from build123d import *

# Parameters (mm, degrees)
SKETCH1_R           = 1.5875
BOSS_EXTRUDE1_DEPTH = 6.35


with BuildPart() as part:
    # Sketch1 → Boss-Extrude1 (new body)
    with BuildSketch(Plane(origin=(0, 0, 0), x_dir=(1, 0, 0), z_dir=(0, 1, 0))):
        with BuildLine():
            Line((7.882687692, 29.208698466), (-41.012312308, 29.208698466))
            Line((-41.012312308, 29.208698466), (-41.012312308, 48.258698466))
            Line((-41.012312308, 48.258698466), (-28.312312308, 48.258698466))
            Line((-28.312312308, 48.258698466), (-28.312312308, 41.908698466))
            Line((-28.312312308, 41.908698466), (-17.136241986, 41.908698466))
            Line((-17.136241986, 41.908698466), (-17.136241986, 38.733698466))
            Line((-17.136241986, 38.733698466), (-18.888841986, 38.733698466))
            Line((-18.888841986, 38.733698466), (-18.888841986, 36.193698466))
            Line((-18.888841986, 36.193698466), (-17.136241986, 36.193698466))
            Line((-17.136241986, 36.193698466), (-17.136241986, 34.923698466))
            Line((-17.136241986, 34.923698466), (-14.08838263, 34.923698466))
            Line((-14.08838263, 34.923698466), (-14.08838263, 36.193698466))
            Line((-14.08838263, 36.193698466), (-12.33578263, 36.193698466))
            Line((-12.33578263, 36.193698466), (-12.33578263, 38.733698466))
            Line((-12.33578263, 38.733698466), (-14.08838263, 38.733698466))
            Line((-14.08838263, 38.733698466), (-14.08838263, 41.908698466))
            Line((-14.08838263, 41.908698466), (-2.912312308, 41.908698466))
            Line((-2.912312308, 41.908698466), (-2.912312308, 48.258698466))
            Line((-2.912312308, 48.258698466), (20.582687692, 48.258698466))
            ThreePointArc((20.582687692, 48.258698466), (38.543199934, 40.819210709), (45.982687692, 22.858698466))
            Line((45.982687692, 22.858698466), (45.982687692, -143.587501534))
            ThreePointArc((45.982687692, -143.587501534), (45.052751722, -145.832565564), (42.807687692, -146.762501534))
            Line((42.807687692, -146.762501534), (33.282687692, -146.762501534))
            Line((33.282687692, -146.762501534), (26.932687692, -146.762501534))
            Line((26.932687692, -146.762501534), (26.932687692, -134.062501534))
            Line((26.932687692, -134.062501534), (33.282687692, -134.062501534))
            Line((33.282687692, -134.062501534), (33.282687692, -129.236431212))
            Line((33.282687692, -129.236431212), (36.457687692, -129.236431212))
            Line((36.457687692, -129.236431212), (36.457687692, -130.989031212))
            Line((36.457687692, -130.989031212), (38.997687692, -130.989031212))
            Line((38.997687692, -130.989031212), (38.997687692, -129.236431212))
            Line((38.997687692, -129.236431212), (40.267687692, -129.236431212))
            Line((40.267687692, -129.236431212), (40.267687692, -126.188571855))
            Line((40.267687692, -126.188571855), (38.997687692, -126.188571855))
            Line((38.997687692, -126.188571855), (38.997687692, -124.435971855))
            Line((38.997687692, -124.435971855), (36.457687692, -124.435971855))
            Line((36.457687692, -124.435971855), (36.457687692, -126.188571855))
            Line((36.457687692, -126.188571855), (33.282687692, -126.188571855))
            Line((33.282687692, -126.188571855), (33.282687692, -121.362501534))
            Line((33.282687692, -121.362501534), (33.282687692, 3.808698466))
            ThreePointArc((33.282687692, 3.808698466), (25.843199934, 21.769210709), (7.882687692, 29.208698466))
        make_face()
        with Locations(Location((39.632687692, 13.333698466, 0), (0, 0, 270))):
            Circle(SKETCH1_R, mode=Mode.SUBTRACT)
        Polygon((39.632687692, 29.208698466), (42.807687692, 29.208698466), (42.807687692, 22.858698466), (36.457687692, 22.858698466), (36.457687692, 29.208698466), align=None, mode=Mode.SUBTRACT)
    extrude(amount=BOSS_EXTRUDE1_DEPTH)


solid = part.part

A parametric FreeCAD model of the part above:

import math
import FreeCAD as App
import Part
import Sketcher
Q = App.Units.Quantity

doc = App.newDocument("Part")
params = doc.addObject("Spreadsheet::Sheet", "Params")
for row, (alias, value) in enumerate([
    ("sketch1_radius", "1 in"),
    ("sketch1_diameter", "0.125 in"),
    ("sketch1_width", "0.1 in"),
    ("sketch1_width2", "0.5 in"),
    ("sketch1_radius2", "0.125 in"),
    ("pad1_length", "0.25 in"),
], start=1):
    params.set(f"A{row}", alias)
    params.set(f"B{row}", "=" + value)
    params.setAlias(f"B{row}", alias)

body = doc.addObject("PartDesign::Body", "Body")

# Sketch on XZ plane
sketch1 = body.newObject("Sketcher::SketchObject", "Sketch")
sketch1.AttachmentSupport = (doc.getObject("XZ_Plane"), [""])
sketch1.MapMode = "FlatFace"
sketch1.addGeometry([
    Part.LineSegment(App.Vector(-41.012312, -29.208698, 0), App.Vector(7.882688, -29.208698, 0)),  # 0
    Part.ArcOfCircle(Part.Circle(App.Vector(7.882688, -3.808698, 0), App.Vector(0, 0, 1), 25.4), math.radians(-90), math.radians(0)),  # 1
    Part.LineSegment(App.Vector(33.282688, -3.808698, 0), App.Vector(33.282688, 126.188572, 0)),  # 2
    Part.LineSegment(App.Vector(33.282688, 126.188572, 0), App.Vector(36.457688, 126.188572, 0)),  # 3
    Part.LineSegment(App.Vector(36.457688, 126.188572, 0), App.Vector(36.457688, 124.435972, 0)),  # 4
    Part.LineSegment(App.Vector(36.457688, 124.435972, 0), App.Vector(38.997688, 124.435972, 0)),  # 5
    Part.LineSegment(App.Vector(38.997688, 124.435972, 0), App.Vector(38.997688, 126.188572, 0)),  # 6
    Part.LineSegment(App.Vector(38.997688, 126.188572, 0), App.Vector(40.267688, 126.188572, 0)),  # 7
    Part.LineSegment(App.Vector(40.267688, 126.188572, 0), App.Vector(40.267688, 129.236431, 0)),  # 8
    Part.LineSegment(App.Vector(40.267688, 129.236431, 0), App.Vector(38.997688, 129.236431, 0)),  # 9
    Part.LineSegment(App.Vector(38.997688, 129.236431, 0), App.Vector(38.997688, 130.989031, 0)),  # 10
    Part.LineSegment(App.Vector(38.997688, 130.989031, 0), App.Vector(36.457688, 130.989031, 0)),  # 11
    Part.LineSegment(App.Vector(36.457688, 130.989031, 0), App.Vector(36.457688, 129.236431, 0)),  # 12
    Part.LineSegment(App.Vector(36.457688, 129.236431, 0), App.Vector(33.282688, 129.236431, 0)),  # 13
    Part.LineSegment(App.Vector(33.282688, 129.236431, 0), App.Vector(33.282688, 134.062502, 0)),  # 14
    Part.LineSegment(App.Vector(33.282688, 134.062502, 0), App.Vector(26.932688, 134.062502, 0)),  # 15
    Part.LineSegment(App.Vector(26.932688, 134.062502, 0), App.Vector(26.932688, 146.762502, 0)),  # 16
    Part.LineSegment(App.Vector(26.932688, 146.762502, 0), App.Vector(42.807688, 146.762502, 0)),  # 17
    Part.ArcOfCircle(Part.Circle(App.Vector(42.807688, 143.587502, 0), App.Vector(0, 0, 1), 3.175), math.radians(0), math.radians(90)),  # 18
    Part.LineSegment(App.Vector(45.982688, 143.587502, 0), App.Vector(45.982688, -22.858698, 0)),  # 19
    Part.ArcOfCircle(Part.Circle(App.Vector(20.582688, -22.858698, 0), App.Vector(0, 0, 1), 25.4), math.radians(-90), math.radians(0)),  # 20
    Part.LineSegment(App.Vector(20.582688, -48.258698, 0), App.Vector(-2.912312, -48.258698, 0)),  # 21
    Part.LineSegment(App.Vector(-2.912312, -48.258698, 0), App.Vector(-2.912312, -41.908698, 0)),  # 22
    Part.LineSegment(App.Vector(-2.912312, -41.908698, 0), App.Vector(-14.088383, -41.908698, 0)),  # 23
    Part.LineSegment(App.Vector(-14.088383, -41.908698, 0), App.Vector(-14.088383, -38.733698, 0)),  # 24
    Part.LineSegment(App.Vector(-14.088383, -38.733698, 0), App.Vector(-12.335783, -38.733698, 0)),  # 25
    Part.LineSegment(App.Vector(-12.335783, -38.733698, 0), App.Vector(-12.335783, -36.193698, 0)),  # 26
    Part.LineSegment(App.Vector(-12.335783, -36.193698, 0), App.Vector(-14.088383, -36.193698, 0)),  # 27
    Part.LineSegment(App.Vector(-14.088383, -36.193698, 0), App.Vector(-14.088383, -34.923698, 0)),  # 28
    Part.LineSegment(App.Vector(-14.088383, -34.923698, 0), App.Vector(-17.136242, -34.923698, 0)),  # 29
    Part.LineSegment(App.Vector(-17.136242, -34.923698, 0), App.Vector(-17.136242, -36.193698, 0)),  # 30
    Part.LineSegment(App.Vector(-17.136242, -36.193698, 0), App.Vector(-18.888842, -36.193698, 0)),  # 31
    Part.LineSegment(App.Vector(-18.888842, -36.193698, 0), App.Vector(-18.888842, -38.733698, 0)),  # 32
    Part.LineSegment(App.Vector(-18.888842, -38.733698, 0), App.Vector(-17.136242, -38.733698, 0)),  # 33
    Part.LineSegment(App.Vector(-17.136242, -38.733698, 0), App.Vector(-17.136242, -41.908698, 0)),  # 34
    Part.LineSegment(App.Vector(-17.136242, -41.908698, 0), App.Vector(-28.312312, -41.908698, 0)),  # 35
    Part.LineSegment(App.Vector(-28.312312, -41.908698, 0), App.Vector(-28.312312, -48.258698, 0)),  # 36
    Part.LineSegment(App.Vector(-28.312312, -48.258698, 0), App.Vector(-41.012312, -48.258698, 0)),  # 37
    Part.LineSegment(App.Vector(-41.012312, -48.258698, 0), App.Vector(-41.012312, -29.208698, 0)),  # 38
    Part.Circle(App.Vector(39.632688, -13.333698, 0), App.Vector(0, 0, 1), 1.5875),  # 39
    Part.LineSegment(App.Vector(42.807688, -29.208698, 0), App.Vector(42.807688, -22.858698, 0)),  # 40
    Part.LineSegment(App.Vector(42.807688, -22.858698, 0), App.Vector(36.457688, -22.858698, 0)),  # 41
    Part.LineSegment(App.Vector(36.457688, -22.858698, 0), App.Vector(36.457688, -29.208698, 0)),  # 42
    Part.LineSegment(App.Vector(36.457688, -29.208698, 0), App.Vector(42.807688, -29.208698, 0)),  # 43
], False)
sketch1.addConstraint([
    Sketcher.Constraint("Tangent", 0, 2, 1, 1),
    Sketcher.Constraint("Tangent", 1, 2, 2, 1),
    Sketcher.Constraint("Coincident", 2, 2, 3, 1),
    Sketcher.Constraint("Coincident", 3, 2, 4, 1),
    Sketcher.Constraint("Coincident", 4, 2, 5, 1),
    Sketcher.Constraint("Coincident", 5, 2, 6, 1),
    Sketcher.Constraint("Coincident", 6, 2, 7, 1),
    Sketcher.Constraint("Coincident", 7, 2, 8, 1),
    Sketcher.Constraint("Coincident", 8, 2, 9, 1),
    Sketcher.Constraint("Coincident", 9, 2, 10, 1),
    Sketcher.Constraint("Coincident", 10, 2, 11, 1),
    Sketcher.Constraint("Coincident", 11, 2, 12, 1),
    Sketcher.Constraint("Coincident", 12, 2, 13, 1),
    Sketcher.Constraint("Coincident", 13, 2, 14, 1),
    Sketcher.Constraint("Coincident", 14, 2, 15, 1),
    Sketcher.Constraint("Coincident", 15, 2, 16, 1),
    Sketcher.Constraint("Coincident", 16, 2, 17, 1),
    Sketcher.Constraint("Tangent", 17, 2, 18, 2),
    Sketcher.Constraint("Tangent", 18, 1, 19, 1),
    Sketcher.Constraint("Tangent", 19, 2, 20, 2),
    Sketcher.Constraint("Tangent", 20, 1, 21, 1),
    Sketcher.Constraint("Coincident", 21, 2, 22, 1),
    Sketcher.Constraint("Coincident", 22, 2, 23, 1),
    Sketcher.Constraint("Coincident", 23, 2, 24, 1),
    Sketcher.Constraint("Coincident", 24, 2, 25, 1),
    Sketcher.Constraint("Coincident", 25, 2, 26, 1),
    Sketcher.Constraint("Coincident", 26, 2, 27, 1),
    Sketcher.Constraint("Coincident", 27, 2, 28, 1),
    Sketcher.Constraint("Coincident", 28, 2, 29, 1),
    Sketcher.Constraint("Coincident", 29, 2, 30, 1),
    Sketcher.Constraint("Coincident", 30, 2, 31, 1),
    Sketcher.Constraint("Coincident", 31, 2, 32, 1),
    Sketcher.Constraint("Coincident", 32, 2, 33, 1),
    Sketcher.Constraint("Coincident", 33, 2, 34, 1),
    Sketcher.Constraint("Coincident", 34, 2, 35, 1),
    Sketcher.Constraint("Coincident", 35, 2, 36, 1),
    Sketcher.Constraint("Coincident", 36, 2, 37, 1),
    Sketcher.Constraint("Coincident", 37, 2, 38, 1),
    Sketcher.Constraint("Coincident", 38, 2, 0, 1),
    Sketcher.Constraint("Coincident", 40, 2, 41, 1),
    Sketcher.Constraint("Coincident", 41, 2, 42, 1),
    Sketcher.Constraint("Coincident", 42, 2, 43, 1),
    Sketcher.Constraint("Coincident", 43, 2, 40, 1),
    Sketcher.Constraint("Horizontal", 0),
    Sketcher.Constraint("Vertical", 2),
    Sketcher.Constraint("Horizontal", 3),
    Sketcher.Constraint("Vertical", 4),
    Sketcher.Constraint("Horizontal", 5),
    Sketcher.Constraint("Vertical", 6),
    Sketcher.Constraint("Horizontal", 7),
    Sketcher.Constraint("Vertical", 8),
    Sketcher.Constraint("Horizontal", 9),
    Sketcher.Constraint("Vertical", 10),
    Sketcher.Constraint("Horizontal", 11),
    Sketcher.Constraint("Vertical", 12),
    Sketcher.Constraint("Horizontal", 13),
    Sketcher.Constraint("Vertical", 14),
    Sketcher.Constraint("Horizontal", 15),
    Sketcher.Constraint("Vertical", 16),
    Sketcher.Constraint("Horizontal", 17),
    Sketcher.Constraint("Vertical", 19),
    Sketcher.Constraint("Horizontal", 21),
    Sketcher.Constraint("Vertical", 22),
    Sketcher.Constraint("Horizontal", 23),
    Sketcher.Constraint("Vertical", 24),
    Sketcher.Constraint("Horizontal", 25),
    Sketcher.Constraint("Vertical", 26),
    Sketcher.Constraint("Horizontal", 27),
    Sketcher.Constraint("Vertical", 28),
    Sketcher.Constraint("Horizontal", 29),
    Sketcher.Constraint("Vertical", 30),
    Sketcher.Constraint("Horizontal", 31),
    Sketcher.Constraint("Vertical", 32),
    Sketcher.Constraint("Horizontal", 33),
    Sketcher.Constraint("Vertical", 34),
    Sketcher.Constraint("Horizontal", 35),
    Sketcher.Constraint("Vertical", 36),
    Sketcher.Constraint("Horizontal", 37),
    Sketcher.Constraint("Vertical", 38),
    Sketcher.Constraint("Vertical", 40),
    Sketcher.Constraint("Horizontal", 41),
    Sketcher.Constraint("Vertical", 42),
    Sketcher.Constraint("Horizontal", 43),
    Sketcher.Constraint("Equal", 1, 20),
    Sketcher.Constraint("Horizontal", 3, 2, 6, 2),
    Sketcher.Constraint("Horizontal", 9, 2, 12, 2),
    Sketcher.Constraint("Horizontal", 27, 2, 30, 2),
    Sketcher.Constraint("Horizontal", 25, 2, 32, 2),
    Sketcher.Constraint("Horizontal", 23, 2, 34, 2),
    Sketcher.Constraint("Horizontal", 21, 2, 36, 2),
    Sketcher.Constraint("Horizontal", 19, 2, 40, 2),
    Sketcher.Constraint("Horizontal", 38, 2, 42, 2),
    Sketcher.Constraint("Vertical", 6, 2, 9, 2),
    Sketcher.Constraint("Vertical", 4, 2, 11, 2),
    Sketcher.Constraint("Vertical", 2, 2, 13, 2),
    Sketcher.Constraint("Vertical", 24, 2, 27, 2),
    Sketcher.Constraint("Vertical", 30, 2, 33, 2),
    Sketcher.Constraint("Vertical", 17, 2, 40, 2),
    Sketcher.Constraint("Vertical", 12, 2, 41, 2),
    Sketcher.Constraint("Equal", 27, 31),
    Sketcher.Constraint("Equal", 23, 35),
    Sketcher.Constraint("Equal", 15, 41),
    Sketcher.Constraint("Equal", 33, 4),
    Sketcher.Constraint("Equal", 29, 8),
    Sketcher.Constraint("Equal", 6, 10),
    Sketcher.Constraint("Equal", 37, 16),
    Sketcher.Constraint("Equal", 43, 22),
    Sketcher.Constraint("Equal", 13, 24),
    Sketcher.Constraint("Equal", 11, 26),
    Sketcher.Constraint("Equal", 9, 28),
    Sketcher.Constraint("Equal", 36, 40),
    Sketcher.Constraint("Radius", 1, Q("1 in")),
    Sketcher.Constraint("Diameter", 39, Q("0.125 in")),
    Sketcher.Constraint("DistanceX", 5, 1, 5, 2, Q("0.1 in")),
    Sketcher.Constraint("DistanceX", 37, 2, 37, 1, Q("0.5 in")),
    Sketcher.Constraint("Radius", 18, Q("0.125 in")),
    Sketcher.Constraint("DistanceX", 7, 1, 7, 2, Q("0.05 in")),
    Sketcher.Constraint("DistanceX", 15, 2, 15, 1, Q("0.25 in")),
    Sketcher.Constraint("DistanceX", 1, 3, 20, 3, Q("0.5 in")),
    Sketcher.Constraint("DistanceX", 0, 1, 0, 2, Q("1.925 in")),
    Sketcher.Constraint("DistanceX", 21, 2, 21, 1, Q("0.925 in")),
    Sketcher.Constraint("DistanceX", 25, 1, 25, 2, Q("0.069 in")),
    Sketcher.Constraint("DistanceY", 19, 2, 19, 1, Q("6.553 in")),
    Sketcher.Constraint("DistanceX", 20, 3, 39, 3, Q("0.75 in")),
    Sketcher.Constraint("DistanceY", 20, 3, 39, 3, Q("0.375 in")),
    Sketcher.Constraint("DistanceX", 23, 2, 23, 1, Q("11.17607 mm")),
    Sketcher.Constraint("DistanceY", 2, 1, 2, 2, Q("129.99727 mm")),
    Sketcher.Constraint("DistanceY", 1, 3, -1, 1, Q("3.808698 mm")),
    Sketcher.Constraint("DistanceX", 29, 2, -1, 1, Q("17.136242 mm")),
])
sketch1.setExpression("Constraints[111]", "Params.sketch1_radius")
sketch1.setExpression("Constraints[112]", "Params.sketch1_diameter")
sketch1.setExpression("Constraints[113]", "Params.sketch1_width")
sketch1.setExpression("Constraints[114]", "Params.sketch1_width2")
sketch1.setExpression("Constraints[115]", "Params.sketch1_radius2")
pad1 = body.newObject("PartDesign::Pad", "Pad")
pad1.Profile = sketch1
pad1.setExpression("Length", "Params.pad1_length")
pad1.Reversed = True

doc.recompute()
